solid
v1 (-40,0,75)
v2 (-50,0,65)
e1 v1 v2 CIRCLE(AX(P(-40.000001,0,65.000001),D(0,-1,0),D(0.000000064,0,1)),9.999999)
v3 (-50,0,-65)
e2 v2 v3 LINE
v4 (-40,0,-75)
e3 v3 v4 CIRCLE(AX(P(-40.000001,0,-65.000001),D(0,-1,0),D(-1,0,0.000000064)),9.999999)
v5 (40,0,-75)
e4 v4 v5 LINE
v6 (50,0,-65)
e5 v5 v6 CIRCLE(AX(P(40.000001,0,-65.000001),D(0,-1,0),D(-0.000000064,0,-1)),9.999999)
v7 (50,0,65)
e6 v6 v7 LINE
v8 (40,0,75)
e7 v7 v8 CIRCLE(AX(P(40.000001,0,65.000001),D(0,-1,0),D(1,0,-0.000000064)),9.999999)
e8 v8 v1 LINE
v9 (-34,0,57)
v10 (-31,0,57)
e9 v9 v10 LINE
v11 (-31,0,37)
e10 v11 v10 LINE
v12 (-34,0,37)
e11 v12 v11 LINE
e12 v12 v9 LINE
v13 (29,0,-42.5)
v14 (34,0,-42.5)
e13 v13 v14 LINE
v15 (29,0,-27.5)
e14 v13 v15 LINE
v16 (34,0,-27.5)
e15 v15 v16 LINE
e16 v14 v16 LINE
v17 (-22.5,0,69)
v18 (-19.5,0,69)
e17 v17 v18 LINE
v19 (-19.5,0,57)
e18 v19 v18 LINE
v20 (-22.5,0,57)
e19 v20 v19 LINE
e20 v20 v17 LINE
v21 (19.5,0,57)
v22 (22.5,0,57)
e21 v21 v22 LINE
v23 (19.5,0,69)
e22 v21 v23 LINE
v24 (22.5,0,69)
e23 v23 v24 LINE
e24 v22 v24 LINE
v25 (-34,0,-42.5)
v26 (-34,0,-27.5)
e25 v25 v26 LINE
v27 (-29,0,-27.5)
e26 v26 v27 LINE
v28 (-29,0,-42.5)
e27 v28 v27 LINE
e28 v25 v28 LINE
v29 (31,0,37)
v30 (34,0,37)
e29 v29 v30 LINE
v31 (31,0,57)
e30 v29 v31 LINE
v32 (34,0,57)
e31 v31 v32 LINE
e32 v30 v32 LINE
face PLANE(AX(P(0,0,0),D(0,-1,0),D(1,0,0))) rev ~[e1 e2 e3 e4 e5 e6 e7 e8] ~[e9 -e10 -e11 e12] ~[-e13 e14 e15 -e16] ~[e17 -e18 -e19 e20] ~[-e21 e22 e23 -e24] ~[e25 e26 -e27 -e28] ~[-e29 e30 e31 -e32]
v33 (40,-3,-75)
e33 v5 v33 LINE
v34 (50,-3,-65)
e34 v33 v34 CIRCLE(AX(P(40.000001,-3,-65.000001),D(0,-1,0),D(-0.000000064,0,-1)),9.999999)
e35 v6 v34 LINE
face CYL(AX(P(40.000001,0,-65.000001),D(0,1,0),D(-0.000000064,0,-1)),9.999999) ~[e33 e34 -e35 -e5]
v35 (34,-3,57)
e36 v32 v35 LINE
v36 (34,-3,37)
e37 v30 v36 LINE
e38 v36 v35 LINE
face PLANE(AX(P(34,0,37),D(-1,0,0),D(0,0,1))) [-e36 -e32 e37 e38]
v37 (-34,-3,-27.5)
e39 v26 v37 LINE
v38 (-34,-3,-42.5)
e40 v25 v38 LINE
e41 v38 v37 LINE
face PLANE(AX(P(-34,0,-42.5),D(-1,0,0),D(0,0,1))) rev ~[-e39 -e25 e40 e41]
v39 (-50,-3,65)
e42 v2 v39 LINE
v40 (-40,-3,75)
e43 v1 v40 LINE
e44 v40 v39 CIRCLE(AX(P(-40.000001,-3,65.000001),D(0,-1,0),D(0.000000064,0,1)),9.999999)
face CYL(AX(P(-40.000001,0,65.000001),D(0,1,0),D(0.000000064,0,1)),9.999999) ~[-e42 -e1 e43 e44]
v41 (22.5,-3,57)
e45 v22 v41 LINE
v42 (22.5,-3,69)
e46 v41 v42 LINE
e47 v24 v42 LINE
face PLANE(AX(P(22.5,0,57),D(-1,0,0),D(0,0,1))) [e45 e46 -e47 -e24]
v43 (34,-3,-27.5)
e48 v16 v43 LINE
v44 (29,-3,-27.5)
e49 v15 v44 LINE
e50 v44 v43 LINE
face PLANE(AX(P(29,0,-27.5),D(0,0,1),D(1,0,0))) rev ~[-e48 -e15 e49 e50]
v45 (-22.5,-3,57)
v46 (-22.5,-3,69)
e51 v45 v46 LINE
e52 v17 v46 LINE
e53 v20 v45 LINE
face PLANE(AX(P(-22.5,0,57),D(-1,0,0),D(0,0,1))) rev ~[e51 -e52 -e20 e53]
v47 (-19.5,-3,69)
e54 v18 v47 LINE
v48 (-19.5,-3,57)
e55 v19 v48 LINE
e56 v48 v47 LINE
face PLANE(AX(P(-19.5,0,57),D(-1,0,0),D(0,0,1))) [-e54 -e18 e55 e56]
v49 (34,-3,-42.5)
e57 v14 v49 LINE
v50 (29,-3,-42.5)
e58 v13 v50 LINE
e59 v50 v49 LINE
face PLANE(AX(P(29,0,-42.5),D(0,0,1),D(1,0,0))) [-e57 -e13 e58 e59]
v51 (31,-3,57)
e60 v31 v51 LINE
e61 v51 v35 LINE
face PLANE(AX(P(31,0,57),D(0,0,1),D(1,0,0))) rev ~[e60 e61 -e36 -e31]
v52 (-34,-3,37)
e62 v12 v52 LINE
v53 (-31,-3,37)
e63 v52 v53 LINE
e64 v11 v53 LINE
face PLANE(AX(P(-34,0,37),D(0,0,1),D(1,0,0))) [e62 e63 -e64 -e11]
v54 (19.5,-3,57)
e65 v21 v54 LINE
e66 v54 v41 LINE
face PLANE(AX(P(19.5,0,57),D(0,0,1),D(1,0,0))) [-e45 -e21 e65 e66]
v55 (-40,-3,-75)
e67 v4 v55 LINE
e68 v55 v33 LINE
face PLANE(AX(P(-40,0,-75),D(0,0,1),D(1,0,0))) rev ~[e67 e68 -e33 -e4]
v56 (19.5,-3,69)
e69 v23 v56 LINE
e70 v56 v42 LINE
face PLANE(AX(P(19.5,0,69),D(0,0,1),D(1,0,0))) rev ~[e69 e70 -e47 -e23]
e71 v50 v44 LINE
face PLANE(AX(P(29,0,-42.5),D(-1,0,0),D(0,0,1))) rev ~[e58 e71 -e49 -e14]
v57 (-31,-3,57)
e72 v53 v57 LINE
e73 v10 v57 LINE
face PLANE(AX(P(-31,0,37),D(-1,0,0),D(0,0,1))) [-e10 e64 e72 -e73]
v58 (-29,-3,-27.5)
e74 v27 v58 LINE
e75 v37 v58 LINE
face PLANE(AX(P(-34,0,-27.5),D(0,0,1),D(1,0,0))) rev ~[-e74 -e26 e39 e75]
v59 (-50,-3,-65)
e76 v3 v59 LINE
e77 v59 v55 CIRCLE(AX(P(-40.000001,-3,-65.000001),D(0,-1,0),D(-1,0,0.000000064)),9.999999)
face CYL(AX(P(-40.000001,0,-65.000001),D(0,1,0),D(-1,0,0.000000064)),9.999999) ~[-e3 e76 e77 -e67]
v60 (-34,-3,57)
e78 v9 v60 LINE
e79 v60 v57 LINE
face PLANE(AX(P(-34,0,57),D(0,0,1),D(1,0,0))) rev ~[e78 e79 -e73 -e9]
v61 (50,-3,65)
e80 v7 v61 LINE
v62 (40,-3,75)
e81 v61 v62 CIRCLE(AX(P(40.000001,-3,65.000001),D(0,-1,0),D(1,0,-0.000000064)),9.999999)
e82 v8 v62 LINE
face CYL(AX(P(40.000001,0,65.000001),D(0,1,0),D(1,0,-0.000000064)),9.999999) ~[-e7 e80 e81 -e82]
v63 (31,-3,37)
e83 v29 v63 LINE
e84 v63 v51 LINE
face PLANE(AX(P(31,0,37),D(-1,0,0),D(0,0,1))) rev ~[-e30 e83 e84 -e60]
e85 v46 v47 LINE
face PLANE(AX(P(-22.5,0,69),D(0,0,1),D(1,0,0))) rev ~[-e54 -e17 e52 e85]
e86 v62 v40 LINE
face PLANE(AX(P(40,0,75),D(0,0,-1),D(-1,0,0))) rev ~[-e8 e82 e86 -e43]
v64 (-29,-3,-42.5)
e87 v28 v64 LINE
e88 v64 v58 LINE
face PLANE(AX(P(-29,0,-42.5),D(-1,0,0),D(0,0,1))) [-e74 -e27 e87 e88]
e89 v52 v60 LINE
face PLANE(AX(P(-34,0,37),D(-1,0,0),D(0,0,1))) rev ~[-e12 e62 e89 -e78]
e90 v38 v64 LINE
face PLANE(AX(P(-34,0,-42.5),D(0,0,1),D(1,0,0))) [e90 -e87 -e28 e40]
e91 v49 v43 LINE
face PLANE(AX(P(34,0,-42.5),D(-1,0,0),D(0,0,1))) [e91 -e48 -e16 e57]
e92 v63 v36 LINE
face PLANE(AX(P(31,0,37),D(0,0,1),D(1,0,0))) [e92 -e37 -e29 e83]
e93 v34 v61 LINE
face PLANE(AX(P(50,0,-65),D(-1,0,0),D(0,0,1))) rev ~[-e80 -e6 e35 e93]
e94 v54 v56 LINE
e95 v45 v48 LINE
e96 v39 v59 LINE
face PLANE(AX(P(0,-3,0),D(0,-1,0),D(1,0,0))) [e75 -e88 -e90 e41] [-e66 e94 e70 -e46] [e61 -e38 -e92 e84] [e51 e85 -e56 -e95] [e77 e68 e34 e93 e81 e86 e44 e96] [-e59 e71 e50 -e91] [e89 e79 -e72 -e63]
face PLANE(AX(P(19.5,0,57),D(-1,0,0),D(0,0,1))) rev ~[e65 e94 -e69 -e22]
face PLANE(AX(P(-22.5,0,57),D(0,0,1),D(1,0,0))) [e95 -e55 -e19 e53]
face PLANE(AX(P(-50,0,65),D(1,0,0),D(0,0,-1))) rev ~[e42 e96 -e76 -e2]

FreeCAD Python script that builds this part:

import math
import FreeCAD as App
import Part
import Sketcher
from FreeCAD import Vector

doc = App.newDocument("Part")
params = doc.addObject("Spreadsheet::Sheet", "Params")
for row, (alias, value) in enumerate([
    ("sketch1_radius", "9.999999 mm"),
    ("sketch1_width", "80 mm"),
    ("sketch1_width2", "5 mm"),
    ("sketch1_width3", "3 mm"),
    ("sketch1_height", "130 mm"),
    ("pad1_length", "3 mm"),
], start=1):
    params.set(f"A{row}", alias)
    params.set(f"B{row}", "=" + value)
    params.setAlias(f"B{row}", alias)

body = doc.addObject("PartDesign::Body", "Body")

# Sketch on XZ plane
sketch1 = body.newObject("Sketcher::SketchObject", "Sketch")
sketch1.AttachmentSupport = (doc.getObject("XZ_Plane"), [""])
sketch1.MapMode = "FlatFace"
sketch1.addGeometry([
    Part.ArcOfCircle(Part.Circle(Vector(40.000001, 65.000001, 0), Vector(0, 0, 1), 9.999999), math.radians(-0.000004), math.radians(90.000004)),  # 0
    Part.LineSegment(Vector(40, 75, 0), Vector(-40, 75, 0)),  # 1
    Part.ArcOfCircle(Part.Circle(Vector(-40.000001, 65.000001, 0), Vector(0, 0, 1), 9.999999), math.radians(89.999996), math.radians(180.000004)),  # 2
    Part.LineSegment(Vector(-50, 65, 0), Vector(-50, -65, 0)),  # 3
    Part.ArcOfCircle(Part.Circle(Vector(-40.000001, -65.000001, 0), Vector(0, 0, 1), 9.999999), math.radians(179.999996), math.radians(270.000004)),  # 4
    Part.LineSegment(Vector(-40, -75, 0), Vector(40, -75, 0)),  # 5
    Part.ArcOfCircle(Part.Circle(Vector(40.000001, -65.000001, 0), Vector(0, 0, 1), 9.999999), math.radians(-90.000004), math.radians(0.000004)),  # 6
    Part.LineSegment(Vector(50, -65, 0), Vector(50, 65, 0)),  # 7
    Part.LineSegment(Vector(-29, -42.5, 0), Vector(-34, -42.5, 0)),  # 8
    Part.LineSegment(Vector(-34, -42.5, 0), Vector(-34, -27.5, 0)),  # 9
    Part.LineSegment(Vector(-34, -27.5, 0), Vector(-29, -27.5, 0)),  # 10
    Part.LineSegment(Vector(-29, -27.5, 0), Vector(-29, -42.5, 0)),  # 11
    Part.LineSegment(Vector(34, -42.5, 0), Vector(29, -42.5, 0)),  # 12
    Part.LineSegment(Vector(29, -42.5, 0), Vector(29, -27.5, 0)),  # 13
    Part.LineSegment(Vector(29, -27.5, 0), Vector(34, -27.5, 0)),  # 14
    Part.LineSegment(Vector(34, -27.5, 0), Vector(34, -42.5, 0)),  # 15
    Part.LineSegment(Vector(-31, 37, 0), Vector(-34, 37, 0)),  # 16
    Part.LineSegment(Vector(-34, 37, 0), Vector(-34, 57, 0)),  # 17
    Part.LineSegment(Vector(-34, 57, 0), Vector(-31, 57, 0)),  # 18
    Part.LineSegment(Vector(-31, 57, 0), Vector(-31, 37, 0)),  # 19
    Part.LineSegment(Vector(-19.5, 57, 0), Vector(-22.5, 57, 0)),  # 20
    Part.LineSegment(Vector(-22.5, 57, 0), Vector(-22.5, 69, 0)),  # 21
    Part.LineSegment(Vector(-22.5, 69, 0), Vector(-19.5, 69, 0)),  # 22
    Part.LineSegment(Vector(-19.5, 69, 0), Vector(-19.5, 57, 0)),  # 23
    Part.LineSegment(Vector(34, 37, 0), Vector(31, 37, 0)),  # 24
    Part.LineSegment(Vector(31, 37, 0), Vector(31, 57, 0)),  # 25
    Part.LineSegment(Vector(31, 57, 0), Vector(34, 57, 0)),  # 26
    Part.LineSegment(Vector(34, 57, 0), Vector(34, 37, 0)),  # 27
    Part.LineSegment(Vector(22.5, 57, 0), Vector(19.5, 57, 0)),  # 28
    Part.LineSegment(Vector(19.5, 57, 0), Vector(19.5, 69, 0)),  # 29
    Part.LineSegment(Vector(19.5, 69, 0), Vector(22.5, 69, 0)),  # 30
    Part.LineSegment(Vector(22.5, 69, 0), Vector(22.5, 57, 0)),  # 31
], False)
sketch1.addConstraint([
    Sketcher.Constraint("Tangent", 0, 2, 1, 1),
    Sketcher.Constraint("Tangent", 1, 2, 2, 1),
    Sketcher.Constraint("Tangent", 2, 2, 3, 1),
    Sketcher.Constraint("Tangent", 3, 2, 4, 1),
    Sketcher.Constraint("Tangent", 4, 2, 5, 1),
    Sketcher.Constraint("Tangent", 5, 2, 6, 1),
    Sketcher.Constraint("Tangent", 6, 2, 7, 1),
    Sketcher.Constraint("Tangent", 7, 2, 0, 1),
    Sketcher.Constraint("Coincident", 8, 2, 9, 1),
    Sketcher.Constraint("Coincident", 9, 2, 10, 1),
    Sketcher.Constraint("Coincident", 10, 2, 11, 1),
    Sketcher.Constraint("Coincident", 11, 2, 8, 1),
    Sketcher.Constraint("Coincident", 12, 2, 13, 1),
    Sketcher.Constraint("Coincident", 13, 2, 14, 1),
    Sketcher.Constraint("Coincident", 14, 2, 15, 1),
    Sketcher.Constraint("Coincident", 15, 2, 12, 1),
    Sketcher.Constraint("Coincident", 16, 2, 17, 1),
    Sketcher.Constraint("Coincident", 17, 2, 18, 1),
    Sketcher.Constraint("Coincident", 18, 2, 19, 1),
    Sketcher.Constraint("Coincident", 19, 2, 16, 1),
    Sketcher.Constraint("Coincident", 20, 2, 21, 1),
    Sketcher.Constraint("Coincident", 21, 2, 22, 1),
    Sketcher.Constraint("Coincident", 22, 2, 23, 1),
    Sketcher.Constraint("Coincident", 23, 2, 20, 1),
    Sketcher.Constraint("Coincident", 24, 2, 25, 1),
    Sketcher.Constraint("Coincident", 25, 2, 26, 1),
    Sketcher.Constraint("Coincident", 26, 2, 27, 1),
    Sketcher.Constraint("Coincident", 27, 2, 24, 1),
    Sketcher.Constraint("Coincident", 28, 2, 29, 1),
    Sketcher.Constraint("Coincident", 29, 2, 30, 1),
    Sketcher.Constraint("Coincident", 30, 2, 31, 1),
    Sketcher.Constraint("Coincident", 31, 2, 28, 1),
    Sketcher.Constraint("Horizontal", 1),
    Sketcher.Constraint("Vertical", 3),
    Sketcher.Constraint("Horizontal", 5),
    Sketcher.Constraint("Vertical", 7),
    Sketcher.Constraint("Horizontal", 8),
    Sketcher.Constraint("Vertical", 9),
    Sketcher.Constraint("Horizontal", 10),
    Sketcher.Constraint("Vertical", 11),
    Sketcher.Constraint("Horizontal", 12),
    Sketcher.Constraint("Vertical", 13),
    Sketcher.Constraint("Horizontal", 14),
    Sketcher.Constraint("Vertical", 15),
    Sketcher.Constraint("Horizontal", 16),
    Sketcher.Constraint("Vertical", 17),
    Sketcher.Constraint("Horizontal", 18),
    Sketcher.Constraint("Vertical", 19),
    Sketcher.Constraint("Horizontal", 20),
    Sketcher.Constraint("Vertical", 21),
    Sketcher.Constraint("Horizontal", 22),
    Sketcher.Constraint("Vertical", 23),
    Sketcher.Constraint("Horizontal", 24),
    Sketcher.Constraint("Vertical", 25),
    Sketcher.Constraint("Horizontal", 26),
    Sketcher.Constraint("Vertical", 27),
    Sketcher.Constraint("Horizontal", 28),
    Sketcher.Constraint("Vertical", 29),
    Sketcher.Constraint("Horizontal", 30),
    Sketcher.Constraint("Vertical", 31),
    Sketcher.Constraint("Equal", 0, 2),
    Sketcher.Constraint("Equal", 2, 4),
    Sketcher.Constraint("Equal", 4, 6),
    Sketcher.Constraint("Symmetric", 0, 3, 4, 3, -1, 1),
    Sketcher.Constraint("Symmetric", 11, 2, 12, 2, -2),
    Sketcher.Constraint("Symmetric", 9, 2, 14, 2, -2),
    Sketcher.Constraint("Symmetric", 19, 2, 24, 2, -2),
    Sketcher.Constraint("Symmetric", 17, 2, 26, 2, -2),
    Sketcher.Constraint("Symmetric", 23, 2, 28, 2, -2),
    Sketcher.Constraint("Symmetric", 21, 2, 30, 2, -2),
    Sketcher.Constraint("Horizontal", 18, 2, 20, 2),
    Sketcher.Constraint("Vertical", 9, 2, 16, 2),
    Sketcher.Constraint("Equal", 18, 20),
    Sketcher.Constraint("Radius", 0, 9.999999),
    Sketcher.Constraint("DistanceX", 1, 2, 1, 1, 80.0),
    Sketcher.Constraint("DistanceX", 8, 2, 8, 1, 5.0),
    Sketcher.Constraint("DistanceX", 16, 2, 16, 1, 3.0),
    Sketcher.Constraint("DistanceY", 3, 2, 3, 1, 130.0),
    Sketcher.Constraint("DistanceY", 9, 1, 9, 2, 15.0),
    Sketcher.Constraint("DistanceY", 17, 1, 17, 2, 20.0),
    Sketcher.Constraint("DistanceY", 21, 1, 21, 2, 12.0),
    Sketcher.Constraint("DistanceX", 8, 2, -1, 1, 34.0),
    Sketcher.Constraint("DistanceY", -1, 1, 16, 2, 37.0),
    Sketcher.Constraint("DistanceY", 8, 2, -1, 1, 42.5),
    Sketcher.Constraint("DistanceX", 20, 2, -1, 1, 22.5),
])
sketch1.setExpression("Constraints[73]", "Params.sketch1_radius")
sketch1.setExpression("Constraints[74]", "Params.sketch1_width")
sketch1.setExpression("Constraints[75]", "Params.sketch1_width2")
sketch1.setExpression("Constraints[76]", "Params.sketch1_width3")
sketch1.setExpression("Constraints[77]", "Params.sketch1_height")
pad1 = body.newObject("PartDesign::Pad", "Pad")
pad1.Profile = sketch1
pad1.setExpression("Length", "Params.pad1_length")

doc.recompute()
